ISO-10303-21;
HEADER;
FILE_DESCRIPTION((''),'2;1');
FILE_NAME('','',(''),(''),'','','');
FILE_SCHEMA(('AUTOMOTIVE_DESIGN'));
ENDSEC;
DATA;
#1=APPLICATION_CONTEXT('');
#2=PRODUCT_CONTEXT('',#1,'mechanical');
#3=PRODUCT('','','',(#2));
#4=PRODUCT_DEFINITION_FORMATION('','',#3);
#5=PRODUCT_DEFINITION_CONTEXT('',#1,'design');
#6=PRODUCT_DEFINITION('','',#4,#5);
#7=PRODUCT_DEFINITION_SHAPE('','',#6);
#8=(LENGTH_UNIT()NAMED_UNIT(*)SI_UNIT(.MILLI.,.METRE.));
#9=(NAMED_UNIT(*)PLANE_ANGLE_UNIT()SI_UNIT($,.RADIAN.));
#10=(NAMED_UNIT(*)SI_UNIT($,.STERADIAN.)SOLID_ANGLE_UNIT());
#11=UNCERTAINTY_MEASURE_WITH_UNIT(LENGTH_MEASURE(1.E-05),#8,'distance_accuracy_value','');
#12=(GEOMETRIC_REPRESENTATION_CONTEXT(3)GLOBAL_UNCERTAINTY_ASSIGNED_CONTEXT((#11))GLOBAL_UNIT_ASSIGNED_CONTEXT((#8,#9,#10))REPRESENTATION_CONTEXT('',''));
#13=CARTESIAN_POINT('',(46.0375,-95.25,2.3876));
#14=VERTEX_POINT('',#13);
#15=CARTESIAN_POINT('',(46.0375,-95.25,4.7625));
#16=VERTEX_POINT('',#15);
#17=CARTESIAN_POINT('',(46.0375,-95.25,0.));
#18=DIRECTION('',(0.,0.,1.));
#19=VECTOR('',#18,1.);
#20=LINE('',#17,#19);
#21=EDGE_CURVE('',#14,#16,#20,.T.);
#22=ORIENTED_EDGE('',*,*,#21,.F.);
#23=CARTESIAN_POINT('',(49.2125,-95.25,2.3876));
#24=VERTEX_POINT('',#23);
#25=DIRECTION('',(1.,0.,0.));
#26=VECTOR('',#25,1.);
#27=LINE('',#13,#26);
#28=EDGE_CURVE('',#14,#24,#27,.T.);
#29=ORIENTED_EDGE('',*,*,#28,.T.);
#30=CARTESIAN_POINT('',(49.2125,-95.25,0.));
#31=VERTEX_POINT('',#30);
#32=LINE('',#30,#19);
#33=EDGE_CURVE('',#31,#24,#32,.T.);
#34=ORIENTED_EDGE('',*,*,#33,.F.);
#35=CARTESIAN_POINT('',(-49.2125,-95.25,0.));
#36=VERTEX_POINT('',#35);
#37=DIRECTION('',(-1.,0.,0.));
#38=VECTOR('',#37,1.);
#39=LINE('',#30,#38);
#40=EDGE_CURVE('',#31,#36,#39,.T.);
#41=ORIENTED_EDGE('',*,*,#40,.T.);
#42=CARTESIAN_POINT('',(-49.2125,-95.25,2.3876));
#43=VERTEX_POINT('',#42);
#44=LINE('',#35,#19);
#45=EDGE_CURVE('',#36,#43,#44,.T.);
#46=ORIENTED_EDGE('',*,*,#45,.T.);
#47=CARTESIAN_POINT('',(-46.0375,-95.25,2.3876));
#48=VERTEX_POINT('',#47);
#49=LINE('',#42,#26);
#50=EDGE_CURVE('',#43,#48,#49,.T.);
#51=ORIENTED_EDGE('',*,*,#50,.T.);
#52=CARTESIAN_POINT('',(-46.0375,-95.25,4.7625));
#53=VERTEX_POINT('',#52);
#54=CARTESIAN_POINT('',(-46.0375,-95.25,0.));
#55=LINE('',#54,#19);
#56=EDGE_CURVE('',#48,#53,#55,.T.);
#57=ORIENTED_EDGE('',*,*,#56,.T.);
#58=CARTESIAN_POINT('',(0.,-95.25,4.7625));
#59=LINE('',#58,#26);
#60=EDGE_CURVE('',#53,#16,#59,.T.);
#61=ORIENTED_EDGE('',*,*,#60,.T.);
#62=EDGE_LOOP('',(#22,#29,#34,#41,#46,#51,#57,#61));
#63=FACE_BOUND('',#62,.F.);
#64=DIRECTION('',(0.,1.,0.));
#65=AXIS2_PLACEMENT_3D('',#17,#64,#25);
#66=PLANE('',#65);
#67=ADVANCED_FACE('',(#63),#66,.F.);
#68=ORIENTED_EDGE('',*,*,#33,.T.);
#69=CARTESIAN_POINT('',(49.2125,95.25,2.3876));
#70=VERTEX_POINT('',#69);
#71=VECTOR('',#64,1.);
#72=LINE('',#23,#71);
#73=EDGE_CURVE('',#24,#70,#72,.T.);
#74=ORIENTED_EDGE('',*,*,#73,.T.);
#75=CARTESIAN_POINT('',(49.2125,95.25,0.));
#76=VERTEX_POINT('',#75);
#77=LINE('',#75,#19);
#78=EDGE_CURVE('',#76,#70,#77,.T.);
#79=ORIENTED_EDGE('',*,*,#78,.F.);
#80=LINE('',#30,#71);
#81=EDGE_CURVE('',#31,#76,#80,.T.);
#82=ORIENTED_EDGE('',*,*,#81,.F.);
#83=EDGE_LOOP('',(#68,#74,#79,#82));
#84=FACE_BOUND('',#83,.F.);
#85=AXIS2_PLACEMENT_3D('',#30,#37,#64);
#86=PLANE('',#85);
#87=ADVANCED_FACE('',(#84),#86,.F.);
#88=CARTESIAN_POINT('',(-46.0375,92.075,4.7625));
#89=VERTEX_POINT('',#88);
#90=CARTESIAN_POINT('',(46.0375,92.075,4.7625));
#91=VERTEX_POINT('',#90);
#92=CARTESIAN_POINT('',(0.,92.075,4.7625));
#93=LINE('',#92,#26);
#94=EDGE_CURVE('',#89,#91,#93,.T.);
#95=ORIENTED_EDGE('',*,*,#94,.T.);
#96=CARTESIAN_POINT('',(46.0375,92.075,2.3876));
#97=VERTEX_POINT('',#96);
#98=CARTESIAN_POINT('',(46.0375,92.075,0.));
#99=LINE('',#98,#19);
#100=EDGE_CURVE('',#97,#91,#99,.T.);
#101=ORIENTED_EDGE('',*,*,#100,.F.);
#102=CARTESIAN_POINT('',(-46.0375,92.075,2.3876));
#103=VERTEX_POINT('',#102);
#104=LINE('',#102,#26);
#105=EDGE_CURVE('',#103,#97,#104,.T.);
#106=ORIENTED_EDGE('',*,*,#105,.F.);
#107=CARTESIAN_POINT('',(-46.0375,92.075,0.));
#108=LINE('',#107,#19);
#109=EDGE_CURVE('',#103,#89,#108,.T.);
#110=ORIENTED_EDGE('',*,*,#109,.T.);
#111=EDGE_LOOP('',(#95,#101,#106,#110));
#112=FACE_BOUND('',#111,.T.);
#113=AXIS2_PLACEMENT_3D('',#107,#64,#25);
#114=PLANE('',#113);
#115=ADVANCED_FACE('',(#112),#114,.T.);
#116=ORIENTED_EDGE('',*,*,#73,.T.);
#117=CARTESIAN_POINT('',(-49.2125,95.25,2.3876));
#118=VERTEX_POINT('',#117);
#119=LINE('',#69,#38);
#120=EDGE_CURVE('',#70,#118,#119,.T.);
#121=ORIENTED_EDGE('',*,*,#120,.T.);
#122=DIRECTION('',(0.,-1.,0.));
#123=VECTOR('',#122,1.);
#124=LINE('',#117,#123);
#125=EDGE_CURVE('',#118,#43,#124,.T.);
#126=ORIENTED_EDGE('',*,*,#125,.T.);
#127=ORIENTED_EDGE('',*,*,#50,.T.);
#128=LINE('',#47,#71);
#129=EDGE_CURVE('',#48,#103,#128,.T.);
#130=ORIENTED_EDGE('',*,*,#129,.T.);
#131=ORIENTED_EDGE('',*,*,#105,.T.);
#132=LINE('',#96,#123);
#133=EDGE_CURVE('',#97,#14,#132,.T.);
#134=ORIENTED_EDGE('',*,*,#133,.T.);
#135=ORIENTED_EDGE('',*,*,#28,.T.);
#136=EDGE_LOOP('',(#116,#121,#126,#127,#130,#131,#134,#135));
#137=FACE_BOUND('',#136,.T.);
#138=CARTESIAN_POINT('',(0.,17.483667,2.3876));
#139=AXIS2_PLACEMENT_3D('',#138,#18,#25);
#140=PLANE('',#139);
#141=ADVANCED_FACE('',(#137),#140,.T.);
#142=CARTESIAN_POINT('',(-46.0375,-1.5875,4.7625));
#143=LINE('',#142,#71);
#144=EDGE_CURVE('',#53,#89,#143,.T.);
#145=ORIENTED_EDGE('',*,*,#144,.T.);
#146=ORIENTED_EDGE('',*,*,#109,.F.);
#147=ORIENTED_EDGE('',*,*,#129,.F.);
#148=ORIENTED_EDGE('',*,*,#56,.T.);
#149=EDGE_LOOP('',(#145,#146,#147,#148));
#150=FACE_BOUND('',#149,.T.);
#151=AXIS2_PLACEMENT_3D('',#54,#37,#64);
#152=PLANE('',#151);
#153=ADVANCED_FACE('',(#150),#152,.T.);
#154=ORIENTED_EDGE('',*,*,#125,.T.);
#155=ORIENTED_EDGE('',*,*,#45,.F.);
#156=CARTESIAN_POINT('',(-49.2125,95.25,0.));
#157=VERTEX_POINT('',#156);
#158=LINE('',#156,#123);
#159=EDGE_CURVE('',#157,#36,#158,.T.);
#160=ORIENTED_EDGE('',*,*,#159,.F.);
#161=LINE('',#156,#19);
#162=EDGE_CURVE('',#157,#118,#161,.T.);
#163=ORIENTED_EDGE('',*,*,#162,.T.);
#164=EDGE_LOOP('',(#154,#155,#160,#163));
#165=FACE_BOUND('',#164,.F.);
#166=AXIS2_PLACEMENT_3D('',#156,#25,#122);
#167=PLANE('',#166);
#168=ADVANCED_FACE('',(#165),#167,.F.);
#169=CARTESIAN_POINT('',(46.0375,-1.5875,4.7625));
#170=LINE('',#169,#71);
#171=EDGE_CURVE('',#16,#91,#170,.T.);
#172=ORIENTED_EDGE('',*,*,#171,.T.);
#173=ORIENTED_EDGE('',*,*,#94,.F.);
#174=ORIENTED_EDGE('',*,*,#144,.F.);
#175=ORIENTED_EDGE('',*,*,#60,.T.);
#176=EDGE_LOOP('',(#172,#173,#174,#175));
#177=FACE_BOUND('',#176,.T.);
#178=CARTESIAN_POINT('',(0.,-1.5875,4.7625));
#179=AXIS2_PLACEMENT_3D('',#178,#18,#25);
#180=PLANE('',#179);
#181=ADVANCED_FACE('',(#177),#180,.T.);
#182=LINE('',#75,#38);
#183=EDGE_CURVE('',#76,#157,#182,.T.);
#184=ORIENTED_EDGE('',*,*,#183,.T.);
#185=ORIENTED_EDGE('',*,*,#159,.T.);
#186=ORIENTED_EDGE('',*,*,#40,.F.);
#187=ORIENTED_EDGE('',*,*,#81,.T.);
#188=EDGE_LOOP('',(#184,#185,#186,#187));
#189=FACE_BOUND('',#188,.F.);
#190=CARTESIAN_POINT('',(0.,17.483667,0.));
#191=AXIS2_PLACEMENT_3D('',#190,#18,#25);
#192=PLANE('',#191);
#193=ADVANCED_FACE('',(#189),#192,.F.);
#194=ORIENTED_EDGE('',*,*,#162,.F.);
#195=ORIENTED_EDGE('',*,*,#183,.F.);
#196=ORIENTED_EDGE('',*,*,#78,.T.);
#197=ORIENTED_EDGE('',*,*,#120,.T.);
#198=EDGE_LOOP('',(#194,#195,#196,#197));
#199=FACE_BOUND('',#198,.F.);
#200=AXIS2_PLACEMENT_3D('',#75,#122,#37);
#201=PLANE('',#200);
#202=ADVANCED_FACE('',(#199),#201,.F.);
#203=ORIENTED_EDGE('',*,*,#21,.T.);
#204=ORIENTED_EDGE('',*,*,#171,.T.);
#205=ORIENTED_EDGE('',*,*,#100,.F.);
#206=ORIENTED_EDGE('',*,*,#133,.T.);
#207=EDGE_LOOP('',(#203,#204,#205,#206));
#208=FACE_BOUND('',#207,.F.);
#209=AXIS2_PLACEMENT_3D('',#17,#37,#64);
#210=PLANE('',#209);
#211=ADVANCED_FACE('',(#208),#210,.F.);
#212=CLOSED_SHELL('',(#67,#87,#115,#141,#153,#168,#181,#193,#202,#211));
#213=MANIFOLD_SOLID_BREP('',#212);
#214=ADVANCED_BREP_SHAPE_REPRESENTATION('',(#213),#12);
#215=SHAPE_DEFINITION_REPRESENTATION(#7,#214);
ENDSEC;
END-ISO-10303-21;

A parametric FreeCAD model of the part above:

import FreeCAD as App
import Part
import Sketcher

V = App.Vector
Q = App.Units.Quantity

doc = App.newDocument("Part")
body = doc.addObject("PartDesign::Body", "Body")

# Sketch on XY plane
sketch1 = body.newObject("Sketcher::SketchObject", "Sketch")
sketch1.AttachmentSupport = (doc.getObject("XY_Plane"), [""])
sketch1.MapMode = "FlatFace"
sketch1.addGeometry([
    Part.LineSegment(V(-46, 92, 0), V(-46, -95, 0)),
    Part.LineSegment(V(-46, -95, 0), V(46, -95, 0)),
    Part.LineSegment(V(46, -95, 0), V(46, 92, 0)),
    Part.LineSegment(V(46, 92, 0), V(-46, 92, 0)),
], False)
sketch1.addConstraint([
    Sketcher.Constraint("Coincident", 0, 2, 1, 1),
    Sketcher.Constraint("Coincident", 1, 2, 2, 1),
    Sketcher.Constraint("Coincident", 2, 2, 3, 1),
    Sketcher.Constraint("Coincident", 3, 2, 0, 1),
    Sketcher.Constraint("Vertical", 0),
    Sketcher.Constraint("Horizontal", 1),
    Sketcher.Constraint("Vertical", 2),
    Sketcher.Constraint("Horizontal", 3),
    Sketcher.Constraint("DistanceX", 1, 1, 1, 2, Q("3.625 in")),
    Sketcher.Constraint("DistanceY", 0, 2, 0, 1, Q("7.375 in")),
    Sketcher.Constraint("DistanceY", 0, 2, -1, 1, Q("3.75 in")),
    Sketcher.Constraint("DistanceX", 0, 2, -1, 1, Q("1.8125 in")),
])
pad1 = body.newObject("PartDesign::Pad", "Pad")
pad1.Profile = sketch1
pad1.Length = Q("0.1875 in")

# Sketch on XY plane
sketch2 = body.newObject("Sketcher::SketchObject", "Sketch001")
sketch2.AttachmentSupport = (doc.getObject("XY_Plane"), [""])
sketch2.MapMode = "FlatFace"
sketch2.addGeometry([
    Part.LineSegment(V(49.2, 95.2, 0), V(-49.2, 95.2, 0)),  # 0
    Part.LineSegment(V(-49.2, 95.2, 0), V(-49.2, -95.2, 0)),  # 1
    Part.LineSegment(V(-49.2, -95.2, 0), V(-46, -95.2, 0)),  # 2
    Part.LineSegment(V(-46, -95.2, 0), V(-46, 92.1, 0)),  # 3
    Part.LineSegment(V(-46, 92.1, 0), V(46, 92.1, 0)),  # 4
    Part.LineSegment(V(46, 92.1, 0), V(46, -95.2, 0)),  # 5
    Part.LineSegment(V(46, -95.2, 0), V(49.2, -95.2, 0)),  # 6
    Part.LineSegment(V(49.2, -95.2, 0), V(49.2, 95.2, 0)),  # 7
], False)
sketch2.addConstraint([
    Sketcher.Constraint("Coincident", 0, 2, 1, 1),
    Sketcher.Constraint("Coincident", 1, 2, 2, 1),
    Sketcher.Constraint("Coincident", 2, 2, 3, 1),
    Sketcher.Constraint("Coincident", 3, 2, 4, 1),
    Sketcher.Constraint("Coincident", 4, 2, 5, 1),
    Sketcher.Constraint("Coincident", 5, 2, 6, 1),
    Sketcher.Constraint("Coincident", 6, 2, 7, 1),
    Sketcher.Constraint("Coincident", 7, 2, 0, 1),
    Sketcher.Constraint("Horizontal", 0),
    Sketcher.Constraint("Vertical", 1),
    Sketcher.Constraint("Horizontal", 2),
    Sketcher.Constraint("Vertical", 3),
    Sketcher.Constraint("Horizontal", 4),
    Sketcher.Constraint("Vertical", 5),
    Sketcher.Constraint("Horizontal", 6),
    Sketcher.Constraint("Vertical", 7),
    Sketcher.Constraint("Symmetric", 0, 2, 6, 2, -1, 1),
    Sketcher.Constraint("Symmetric", 2, 2, 5, 2, -2),
    Sketcher.Constraint("DistanceY", 1, 2, 1, 1, Q("7.5 in")),
    Sketcher.Constraint("DistanceX", 0, 2, 0, 1, Q("3.875 in")),
    Sketcher.Constraint("DistanceX", 2, 1, 2, 2, Q("0.125 in")),
    Sketcher.Constraint("DistanceY", 3, 1, 3, 2, Q("7.375 in")),
])
pad2 = body.newObject("PartDesign::Pad", "Pad001")
pad2.Profile = sketch2
pad2.Length = Q("0.094 in")

doc.recompute()
